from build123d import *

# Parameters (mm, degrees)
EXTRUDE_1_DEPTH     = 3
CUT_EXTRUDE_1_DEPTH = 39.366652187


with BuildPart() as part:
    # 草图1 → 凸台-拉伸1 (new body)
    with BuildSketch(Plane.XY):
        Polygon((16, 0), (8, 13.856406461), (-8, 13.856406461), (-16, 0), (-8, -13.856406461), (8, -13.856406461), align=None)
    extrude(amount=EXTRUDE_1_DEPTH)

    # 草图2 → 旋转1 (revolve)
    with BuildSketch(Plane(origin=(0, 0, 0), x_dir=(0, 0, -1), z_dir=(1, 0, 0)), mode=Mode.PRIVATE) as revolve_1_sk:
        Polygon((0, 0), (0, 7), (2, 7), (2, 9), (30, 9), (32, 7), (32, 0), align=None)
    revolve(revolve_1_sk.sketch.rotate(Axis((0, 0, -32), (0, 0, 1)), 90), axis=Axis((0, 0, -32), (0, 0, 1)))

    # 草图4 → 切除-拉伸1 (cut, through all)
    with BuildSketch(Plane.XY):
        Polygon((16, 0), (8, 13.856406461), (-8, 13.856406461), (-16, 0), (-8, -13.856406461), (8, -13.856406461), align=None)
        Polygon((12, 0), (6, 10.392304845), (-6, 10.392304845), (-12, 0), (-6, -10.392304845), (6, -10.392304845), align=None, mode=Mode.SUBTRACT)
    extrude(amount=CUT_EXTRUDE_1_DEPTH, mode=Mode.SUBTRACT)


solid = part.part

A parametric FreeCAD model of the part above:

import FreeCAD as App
import Part
import Sketcher
from FreeCAD import Vector
Q = App.Units.Quantity

doc = App.newDocument("Part")
body = doc.addObject("PartDesign::Body", "Body")

# Sketch on XY plane
sketch1 = body.newObject("Sketcher::SketchObject", "Sketch")
sketch1.AttachmentSupport = (doc.getObject("XY_Plane"), [""])
sketch1.MapMode = "FlatFace"
sketch1.addGeometry([
    Part.LineSegment(Vector(16, 0, 0), Vector(8, 13.856406, 0)),  # 0
    Part.LineSegment(Vector(8, 13.856406, 0), Vector(-8, 13.856406, 0)),  # 1
    Part.LineSegment(Vector(-8, 13.856406, 0), Vector(-16, 0, 0)),  # 2
    Part.LineSegment(Vector(-16, 0, 0), Vector(-8, -13.856406, 0)),  # 3
    Part.LineSegment(Vector(-8, -13.856406, 0), Vector(8, -13.856406, 0)),  # 4
    Part.LineSegment(Vector(8, -13.856406, 0), Vector(16, 0, 0)),  # 5
], False)
sketch1.addConstraint([
    Sketcher.Constraint("Coincident", 0, 2, 1, 1),
    Sketcher.Constraint("Coincident", 1, 2, 2, 1),
    Sketcher.Constraint("Coincident", 2, 2, 3, 1),
    Sketcher.Constraint("Coincident", 3, 2, 4, 1),
    Sketcher.Constraint("Coincident", 4, 2, 5, 1),
    Sketcher.Constraint("Coincident", 5, 2, 0, 1),
    Sketcher.Constraint("Horizontal", 1),
    Sketcher.Constraint("Horizontal", 4),
    Sketcher.Constraint("Symmetric", 0, 2, 3, 2, -1, 1),
    Sketcher.Constraint("Symmetric", 2, 2, 5, 2, -1, 1),
    Sketcher.Constraint("PointOnObject", 2, 2, -1),
    Sketcher.Constraint("Parallel", 2, 5),
    Sketcher.Constraint("Vertical", 1, 2, 3, 2),
    Sketcher.Constraint("DistanceX", 1, 2, 1, 1, 16.0),
    Sketcher.Constraint("Angle", 0, Q("120 deg")),
    Sketcher.Constraint("Distance", 0, 16.0),
])
pad1 = body.newObject("PartDesign::Pad", "Pad")
pad1.Profile = sketch1
pad1.Length = 3

# Sketch on YZ plane
sketch2 = body.newObject("Sketcher::SketchObject", "Sketch001")
sketch2.AttachmentSupport = (doc.getObject("YZ_Plane"), [""])
sketch2.MapMode = "FlatFace"
sketch2.addGeometry([
    Part.LineSegment(Vector(7, 0, 0), Vector(0, 0, 0)),  # 0
    Part.LineSegment(Vector(0, 0, 0), Vector(0, -32, 0)),  # 1
    Part.LineSegment(Vector(0, -32, 0), Vector(7, -32, 0)),  # 2
    Part.LineSegment(Vector(7, -32, 0), Vector(9, -30, 0)),  # 3
    Part.LineSegment(Vector(9, -30, 0), Vector(9, -2, 0)),  # 4
    Part.LineSegment(Vector(9, -2, 0), Vector(7, -2, 0)),  # 5
    Part.LineSegment(Vector(7, -2, 0), Vector(7, 0, 0)),  # 6
], False)
sketch2.addConstraint([
    Sketcher.Constraint("Coincident", 0, 2, 1, 1),
    Sketcher.Constraint("Coincident", 1, 2, 2, 1),
    Sketcher.Constraint("Coincident", 2, 2, 3, 1),
    Sketcher.Constraint("Coincident", 3, 2, 4, 1),
    Sketcher.Constraint("Coincident", 4, 2, 5, 1),
    Sketcher.Constraint("Coincident", 5, 2, 6, 1),
    Sketcher.Constraint("Coincident", 6, 2, 0, 1),
    Sketcher.Constraint("Horizontal", 0),
    Sketcher.Constraint("Vertical", 1),
    Sketcher.Constraint("Horizontal", 2),
    Sketcher.Constraint("Vertical", 4),
    Sketcher.Constraint("Horizontal", 5),
    Sketcher.Constraint("Vertical", 6),
    Sketcher.Constraint("Coincident", 0, 2, -1, 1),
    Sketcher.Constraint("Vertical", 2, 2, 5, 2),
    Sketcher.Constraint("Equal", 5, 6),
    Sketcher.Constraint("DistanceX", 0, 2, 0, 1, 7.0),
    Sketcher.Constraint("DistanceX", 5, 2, 5, 1, 2.0),
    Sketcher.Constraint("DistanceY", 1, 2, 1, 1, 32.0),
    Sketcher.Constraint("DistanceY", 4, 1, 4, 2, 28.0),
])
revolution = body.newObject("PartDesign::Revolution", "Revolution")
revolution.Profile = sketch2
revolution.ReferenceAxis = (sketch2, ["V_Axis"])
revolution.Angle = 360

# Sketch on XY plane
sketch3 = body.newObject("Sketcher::SketchObject", "Sketch002")
sketch3.AttachmentSupport = (doc.getObject("XY_Plane"), [""])
sketch3.MapMode = "FlatFace"
sketch3.addGeometry([
    Part.LineSegment(Vector(16, 0, 0), Vector(8, 13.856406, 0)),  # 0
    Part.LineSegment(Vector(8, 13.856406, 0), Vector(-8, 13.856406, 0)),  # 1
    Part.LineSegment(Vector(-8, 13.856406, 0), Vector(-16, 0, 0)),  # 2
    Part.LineSegment(Vector(-16, 0, 0), Vector(-8, -13.856406, 0)),  # 3
    Part.LineSegment(Vector(-8, -13.856406, 0), Vector(8, -13.856406, 0)),  # 4
    Part.LineSegment(Vector(8, -13.856406, 0), Vector(16, 0, 0)),  # 5
    Part.LineSegment(Vector(6, 10.392305, 0), Vector(12, 0, 0)),  # 6
    Part.LineSegment(Vector(12, 0, 0), Vector(6, -10.392305, 0)),  # 7
    Part.LineSegment(Vector(6, -10.392305, 0), Vector(-6, -10.392305, 0)),  # 8
    Part.LineSegment(Vector(-6, -10.392305, 0), Vector(-12, 0, 0)),  # 9
    Part.LineSegment(Vector(-12, 0, 0), Vector(-6, 10.392305, 0)),  # 10
    Part.LineSegment(Vector(-6, 10.392305, 0), Vector(6, 10.392305, 0)),  # 11
], False)
sketch3.addConstraint([
    Sketcher.Constraint("Coincident", 0, 2, 1, 1),
    Sketcher.Constraint("Coincident", 1, 2, 2, 1),
    Sketcher.Constraint("Coincident", 2, 2, 3, 1),
    Sketcher.Constraint("Coincident", 3, 2, 4, 1),
    Sketcher.Constraint("Coincident", 4, 2, 5, 1),
    Sketcher.Constraint("Coincident", 5, 2, 0, 1),
    Sketcher.Constraint("Coincident", 6, 2, 7, 1),
    Sketcher.Constraint("Coincident", 7, 2, 8, 1),
    Sketcher.Constraint("Coincident", 8, 2, 9, 1),
    Sketcher.Constraint("Coincident", 9, 2, 10, 1),
    Sketcher.Constraint("Coincident", 10, 2, 11, 1),
    Sketcher.Constraint("Coincident", 11, 2, 6, 1),
    Sketcher.Constraint("Horizontal", 1),
    Sketcher.Constraint("Horizontal", 4),
    Sketcher.Constraint("Horizontal", 8),
    Sketcher.Constraint("Horizontal", 11),
    Sketcher.Constraint("Symmetric", 0, 2, 3, 2, -1, 1),
    Sketcher.Constraint("Symmetric", 2, 2, 5, 2, -1, 1),
    Sketcher.Constraint("Symmetric", 6, 2, 9, 2, -1, 1),
    Sketcher.Constraint("Symmetric", 7, 2, 10, 2, -1, 1),
    Sketcher.Constraint("PointOnObject", 2, 2, -1),
    Sketcher.Constraint("PointOnObject", 6, 2, -1),
    Sketcher.Constraint("Parallel", 2, 5),
    Sketcher.Constraint("Parallel", 3, 6),
    Sketcher.Constraint("Parallel", 5, 7),
    Sketcher.Constraint("Parallel", 6, 9),
    Sketcher.Constraint("Vertical", 1, 2, 3, 2),
    Sketcher.Constraint("DistanceX", 1, 2, 1, 1, 16.0),
    Sketcher.Constraint("DistanceX", 8, 2, 8, 1, 12.0),
    Sketcher.Constraint("Angle", 0, Q("120 deg")),
    Sketcher.Constraint("Distance", 0, 16.0),
    Sketcher.Constraint("Distance", 6, 12.0),
])
pocket1 = body.newObject("PartDesign::Pocket", "Pocket")
pocket1.Profile = sketch3
pocket1.Type = "ThroughAll"
pocket1.Reversed = True

doc.recompute()
